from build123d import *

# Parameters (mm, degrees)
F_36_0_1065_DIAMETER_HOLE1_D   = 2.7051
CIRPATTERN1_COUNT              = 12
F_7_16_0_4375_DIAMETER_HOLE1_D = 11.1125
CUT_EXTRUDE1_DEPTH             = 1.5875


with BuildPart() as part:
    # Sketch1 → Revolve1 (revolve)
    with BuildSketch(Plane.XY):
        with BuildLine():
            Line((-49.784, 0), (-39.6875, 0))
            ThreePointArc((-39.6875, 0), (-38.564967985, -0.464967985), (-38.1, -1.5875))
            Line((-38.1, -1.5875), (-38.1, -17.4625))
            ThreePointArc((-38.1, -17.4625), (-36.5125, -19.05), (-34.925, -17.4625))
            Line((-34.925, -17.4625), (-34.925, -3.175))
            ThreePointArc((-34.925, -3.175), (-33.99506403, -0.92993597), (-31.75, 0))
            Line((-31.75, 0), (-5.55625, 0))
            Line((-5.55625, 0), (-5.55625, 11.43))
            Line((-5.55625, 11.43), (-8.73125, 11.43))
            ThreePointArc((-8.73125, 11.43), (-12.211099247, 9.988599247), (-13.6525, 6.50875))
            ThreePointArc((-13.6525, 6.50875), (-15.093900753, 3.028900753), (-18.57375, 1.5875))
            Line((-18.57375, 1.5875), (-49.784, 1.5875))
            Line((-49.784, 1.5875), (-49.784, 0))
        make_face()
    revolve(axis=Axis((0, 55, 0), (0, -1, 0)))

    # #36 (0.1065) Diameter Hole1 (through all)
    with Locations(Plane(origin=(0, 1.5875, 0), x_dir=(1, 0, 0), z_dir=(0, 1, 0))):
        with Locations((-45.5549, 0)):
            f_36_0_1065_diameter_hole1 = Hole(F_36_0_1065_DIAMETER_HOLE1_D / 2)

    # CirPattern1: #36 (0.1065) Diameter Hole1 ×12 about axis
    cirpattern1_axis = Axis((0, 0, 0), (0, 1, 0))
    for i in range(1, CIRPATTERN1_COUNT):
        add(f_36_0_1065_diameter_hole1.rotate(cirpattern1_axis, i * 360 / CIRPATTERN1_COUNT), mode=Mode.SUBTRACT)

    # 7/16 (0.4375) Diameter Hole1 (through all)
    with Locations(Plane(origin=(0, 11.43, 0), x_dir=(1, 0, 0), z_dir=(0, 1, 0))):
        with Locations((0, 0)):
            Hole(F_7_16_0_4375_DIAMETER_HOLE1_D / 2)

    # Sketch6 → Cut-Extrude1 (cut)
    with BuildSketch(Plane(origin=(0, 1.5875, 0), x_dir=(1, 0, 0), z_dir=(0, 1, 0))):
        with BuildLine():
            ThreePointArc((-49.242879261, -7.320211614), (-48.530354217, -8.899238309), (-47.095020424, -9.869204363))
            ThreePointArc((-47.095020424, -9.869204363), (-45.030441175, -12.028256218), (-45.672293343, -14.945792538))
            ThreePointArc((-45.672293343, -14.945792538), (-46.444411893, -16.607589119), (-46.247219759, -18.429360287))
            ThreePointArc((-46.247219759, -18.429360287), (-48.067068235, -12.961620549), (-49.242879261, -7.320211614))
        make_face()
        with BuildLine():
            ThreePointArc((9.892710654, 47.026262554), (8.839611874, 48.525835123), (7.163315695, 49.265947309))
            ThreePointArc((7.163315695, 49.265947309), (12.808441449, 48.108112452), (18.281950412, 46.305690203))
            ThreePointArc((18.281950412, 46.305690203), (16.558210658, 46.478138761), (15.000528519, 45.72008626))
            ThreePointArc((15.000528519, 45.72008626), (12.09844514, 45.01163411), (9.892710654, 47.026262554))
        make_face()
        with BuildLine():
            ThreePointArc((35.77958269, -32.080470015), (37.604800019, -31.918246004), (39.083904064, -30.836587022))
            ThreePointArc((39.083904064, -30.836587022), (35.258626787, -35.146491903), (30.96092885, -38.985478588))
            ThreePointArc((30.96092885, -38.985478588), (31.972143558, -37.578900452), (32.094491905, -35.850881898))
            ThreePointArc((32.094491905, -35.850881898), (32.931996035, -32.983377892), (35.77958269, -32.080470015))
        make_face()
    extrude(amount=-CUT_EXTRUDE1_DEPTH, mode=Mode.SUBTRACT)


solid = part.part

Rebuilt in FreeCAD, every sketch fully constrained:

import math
import FreeCAD as App
import Part
import Sketcher

V = App.Vector
Q = App.Units.Quantity

doc = App.newDocument("Part")
body = doc.addObject("PartDesign::Body", "Body")

sketch1 = doc.addObject("Sketcher::SketchObject", "Sketch")
body.addObject(sketch1)
sketch1.AttachmentSupport = (doc.XY_Plane, [""])
sketch1.MapMode = "FlatFace"
sketch1.addGeometry([
    Part.LineSegment(V(-49.8, 0, 0), V(-39.7, 0, 0)),
    Part.ArcOfCircle(Part.Circle(V(-39.7, -1.6, 0), V(0, 0, 1), 1.6), math.radians(0), math.radians(90)),
    Part.LineSegment(V(-38.1, -1.6, 0), V(-38.1, -17.5, 0)),
    Part.ArcOfCircle(Part.Circle(V(-36.5, -17.5, 0), V(0, 0, 1), 1.6), math.radians(180), math.radians(360)),
    Part.LineSegment(V(-34.9, -17.5, 0), V(-34.9, -3.2, 0)),
    Part.ArcOfCircle(Part.Circle(V(-31.7, -3.2, 0), V(0, 0, 1), 3.2), math.radians(90), math.radians(180)),
    Part.LineSegment(V(-31.8, 0, 0), V(-5.6, 0, 0)),
    Part.LineSegment(V(-5.6, 0, 0), V(-5.6, 11.4, 0)),
    Part.LineSegment(V(-5.6, 11.4, 0), V(-8.7, 11.4, 0)),
    Part.ArcOfCircle(Part.Circle(V(-8.7, 6.5, 0), V(0, 0, 1), 4.9), math.radians(90), math.radians(180)),
    Part.ArcOfCircle(Part.Circle(V(-18.6, 6.5, 0), V(0, 0, 1), 4.9), math.radians(-90), math.radians(0)),
    Part.LineSegment(V(-18.6, 1.6, 0), V(-49.8, 1.6, 0)),
    Part.LineSegment(V(-49.8, 1.6, 0), V(-49.8, 0, 0)),
], False)
sketch1.addConstraint([
    Sketcher.Constraint("Tangent", 0, 2, 1, 2),
    Sketcher.Constraint("Tangent", 1, 1, 2, 1),
    Sketcher.Constraint("Tangent", 2, 2, 3, 1),
    Sketcher.Constraint("Tangent", 3, 2, 4, 1),
    Sketcher.Constraint("Tangent", 4, 2, 5, 2),
    Sketcher.Constraint("Tangent", 5, 1, 6, 1),
    Sketcher.Constraint("Coincident", 6, 2, 7, 1),
    Sketcher.Constraint("Coincident", 7, 2, 8, 1),
    Sketcher.Constraint("Tangent", 8, 2, 9, 1),
    Sketcher.Constraint("Tangent", 9, 2, 10, 2),
    Sketcher.Constraint("Tangent", 10, 1, 11, 1),
    Sketcher.Constraint("Coincident", 11, 2, 12, 1),
    Sketcher.Constraint("Coincident", 12, 2, 0, 1),
    Sketcher.Constraint("Horizontal", 0),
    Sketcher.Constraint("Vertical", 2),
    Sketcher.Constraint("Vertical", 4),
    Sketcher.Constraint("Horizontal", 6),
    Sketcher.Constraint("Vertical", 7),
    Sketcher.Constraint("Horizontal", 8),
    Sketcher.Constraint("Horizontal", 11),
    Sketcher.Constraint("Vertical", 12),
    Sketcher.Constraint("Equal", 1, 3),
    Sketcher.Constraint("Equal", 9, 10),
    Sketcher.Constraint("PointOnObject", 0, 2, -1),
    Sketcher.Constraint("PointOnObject", 5, 1, -1),
    Sketcher.Constraint("Horizontal", 9, 3, 10, 3),
    Sketcher.Constraint("Radius", 1, Q("0.0625 in")),
    Sketcher.Constraint("Radius", 5, Q("0.125 in")),
    Sketcher.Constraint("DistanceY", 7, 1, 7, 2, Q("0.45 in")),
    Sketcher.Constraint("DistanceX", 1, 1, -1, 1, Q("1.5 in")),
    Sketcher.Constraint("DistanceX", 6, 1, 6, 2, Q("1.03125 in")),
    Sketcher.Constraint("DistanceX", 8, 2, 8, 1, Q("0.125 in")),
    Sketcher.Constraint("DistanceY", 2, 2, 2, 1, Q("0.625 in")),
    Sketcher.Constraint("DistanceY", 12, 2, 12, 1, Q("0.0625 in")),
    Sketcher.Constraint("DistanceX", 11, 2, -1, 1, Q("1.96 in")),
])
revolution = doc.addObject("PartDesign::Revolution", "Revolution")
body.addObject(revolution)
revolution.Profile = sketch1
revolution.ReferenceAxis = (sketch1, ["V_Axis"])
revolution.Angle = 360

sketch2 = doc.addObject("Sketcher::SketchObject", "Sketch001")
body.addObject(sketch2)
sketch2.AttachmentSupport = (doc.XZ_Plane, [""])
sketch2.MapMode = "FlatFace"
sketch2.AttachmentOffset = App.Placement(V(0, 0, -0.0625 * 25.4), App.Rotation())
sketch2.addGeometry(Part.Circle(V(-45.6, 0, 0), V(0, 0, 1), 1.4), False)
sketch2.addConstraint([
    Sketcher.Constraint("PointOnObject", 0, 3, -1),
    Sketcher.Constraint("Diameter", 0, Q("0.1065 in")),
    Sketcher.Constraint("DistanceX", 0, 3, -1, 1, Q("1.7935 in")),
])
doc.recompute()
hole = doc.addObject("PartDesign::Hole", "Hole")
body.addObject(hole)
hole.Profile = sketch2
hole.ThreadType = "None"
hole.Diameter = Q("0.1065 in")
hole.DepthType = "ThroughAll"
hole.Reversed = True
doc.recompute()

polarpattern = doc.addObject("PartDesign::PolarPattern", "PolarPattern")
body.addObject(polarpattern)
polarpattern.Originals = [hole]
polarpattern.Axis = (doc.Y_Axis, [""])
polarpattern.Angle = 360
polarpattern.Occurrences = 12
body.Tip = polarpattern

sketch3 = doc.addObject("Sketcher::SketchObject", "Sketch002")
body.addObject(sketch3)
sketch3.AttachmentSupport = (doc.XZ_Plane, [""])
sketch3.MapMode = "FlatFace"
sketch3.AttachmentOffset = App.Placement(V(0, 0, -0.45 * 25.4), App.Rotation())
sketch3.addGeometry(Part.Circle(V(0, 0, 0), V(0, 0, 1), 6), False)
sketch3.addConstraint([
    Sketcher.Constraint("Coincident", 0, 3, -1, 1),
    Sketcher.Constraint("Diameter", 0, Q("0.4375 in")),
])
doc.recompute()
hole2 = doc.addObject("PartDesign::Hole", "Hole001")
body.addObject(hole2)
hole2.Profile = sketch3
hole2.ThreadType = "None"
hole2.Diameter = Q("0.4375 in")
hole2.DepthType = "ThroughAll"
hole2.Reversed = True

sketch4 = doc.addObject("Sketcher::SketchObject", "Sketch003")
body.addObject(sketch4)
sketch4.AttachmentSupport = (doc.XZ_Plane, [""])
sketch4.MapMode = "FlatFace"
sketch4.AttachmentOffset = App.Placement(V(0, 0, -0.0625 * 25.4), App.Rotation())
sketch4.addGeometry([
    Part.ArcOfCircle(Part.Circle(V(-46.1, 6.9, 0), V(0, 0, 1), 3.2), math.radians(108), math.radians(172)),
    Part.ArcOfCircle(Part.Circle(V(0, 0, 0), V(0, 0, 1), 49.8), math.radians(158.27), math.radians(171.54)),
    Part.ArcOfCircle(Part.Circle(V(-43.1, 17.2, 0), V(0, 0, 1), 3.4), math.radians(158), math.radians(220)),
    Part.ArcOfCircle(Part.Circle(V(-48.1, 12.9, 0), V(0, 0, 1), 3.2), math.radians(-72), math.radians(40)),
    Part.ArcOfCircle(Part.Circle(V(6.7, -45.9, 0), V(0, 0, 1), 3.4), math.radians(-82), math.radians(-20)),
    Part.ArcOfCircle(Part.Circle(V(12.9, -48.1, 0), V(0, 0, 1), 3.2), math.radians(48), math.radians(160)),
    Part.ArcOfCircle(Part.Circle(V(17.1, -43.4, 0), V(0, 0, 1), 3.2), math.radians(-132), math.radians(-68)),
    Part.ArcOfCircle(Part.Circle(V(0, 0, 0), V(0, 0, 1), 49.8), math.radians(-81.73), math.radians(-68.46)),
    Part.ArcOfCircle(Part.Circle(V(36.4, 28.7, 0), V(0, 0, 1), 3.4), math.radians(38), math.radians(100)),
    Part.ArcOfCircle(Part.Circle(V(35.2, 35.2, 0), V(0, 0, 1), 3.2), math.radians(168), math.radians(280)),
    Part.ArcOfCircle(Part.Circle(V(29, 36.5, 0), V(0, 0, 1), 3.2), math.radians(-12), math.radians(52)),
    Part.ArcOfCircle(Part.Circle(V(0, 0, 0), V(0, 0, 1), 49.8), math.radians(38.27), math.radians(51.54)),
], False)
sketch4.addConstraint([
    Sketcher.Constraint("Tangent", 0, 2, 1, 2),
    Sketcher.Constraint("Tangent", 1, 1, 2, 1),
    Sketcher.Constraint("Tangent", 2, 2, 3, 2),
    Sketcher.Constraint("Tangent", 3, 1, 0, 1),
    Sketcher.Constraint("Tangent", 4, 2, 5, 2),
    Sketcher.Constraint("Tangent", 5, 1, 6, 1),
    Sketcher.Constraint("Tangent", 6, 2, 7, 2),
    Sketcher.Constraint("Tangent", 7, 1, 4, 1),
    Sketcher.Constraint("Tangent", 8, 2, 9, 2),
    Sketcher.Constraint("Tangent", 9, 1, 10, 1),
    Sketcher.Constraint("Tangent", 10, 2, 11, 2),
    Sketcher.Constraint("Tangent", 11, 1, 8, 1),
    Sketcher.Constraint("Coincident", 1, 3, -1, 1),
    Sketcher.Constraint("Coincident", 7, 3, -1, 1),
    Sketcher.Constraint("Coincident", 11, 3, -1, 1),
    Sketcher.Constraint("Equal", 0, 3),
    Sketcher.Constraint("Equal", 2, 4),
    Sketcher.Constraint("Equal", 3, 5),
    Sketcher.Constraint("Equal", 5, 6),
    Sketcher.Constraint("Equal", 1, 7),
    Sketcher.Constraint("Equal", 4, 8),
    Sketcher.Constraint("Equal", 6, 9),
    Sketcher.Constraint("Equal", 9, 10),
    Sketcher.Constraint("Equal", 7, 11),
    Sketcher.Constraint("Radius", 1, Q("1.96 in")),
    Sketcher.Constraint("Radius", 0, Q("0.125 in")),
    Sketcher.Constraint("Radius", 2, Q("3.41781 mm")),
    Sketcher.Constraint("DistanceX", 3, 3, 5, 3, Q("2.4004999 in")),
    Sketcher.Constraint("DistanceY", 5, 3, 3, 3, Q("2.4004999 in")),
    Sketcher.Constraint("DistanceX", 4, 3, 6, 3, Q("0.4111998 in")),
    Sketcher.Constraint("DistanceX", 0, 3, 6, 3, Q("63.218399 mm")),
    Sketcher.Constraint("DistanceX", 2, 3, 10, 3, Q("72.0586 mm")),
    Sketcher.Constraint("DistanceY", 8, 3, 8, 2, Q("3.360901 mm")),
])
pocket1 = doc.addObject("PartDesign::Pocket", "Pocket")
body.addObject(pocket1)
pocket1.Profile = sketch4
pocket1.Length = Q("0.0625 in")
pocket1.Reversed = True

doc.recompute()
